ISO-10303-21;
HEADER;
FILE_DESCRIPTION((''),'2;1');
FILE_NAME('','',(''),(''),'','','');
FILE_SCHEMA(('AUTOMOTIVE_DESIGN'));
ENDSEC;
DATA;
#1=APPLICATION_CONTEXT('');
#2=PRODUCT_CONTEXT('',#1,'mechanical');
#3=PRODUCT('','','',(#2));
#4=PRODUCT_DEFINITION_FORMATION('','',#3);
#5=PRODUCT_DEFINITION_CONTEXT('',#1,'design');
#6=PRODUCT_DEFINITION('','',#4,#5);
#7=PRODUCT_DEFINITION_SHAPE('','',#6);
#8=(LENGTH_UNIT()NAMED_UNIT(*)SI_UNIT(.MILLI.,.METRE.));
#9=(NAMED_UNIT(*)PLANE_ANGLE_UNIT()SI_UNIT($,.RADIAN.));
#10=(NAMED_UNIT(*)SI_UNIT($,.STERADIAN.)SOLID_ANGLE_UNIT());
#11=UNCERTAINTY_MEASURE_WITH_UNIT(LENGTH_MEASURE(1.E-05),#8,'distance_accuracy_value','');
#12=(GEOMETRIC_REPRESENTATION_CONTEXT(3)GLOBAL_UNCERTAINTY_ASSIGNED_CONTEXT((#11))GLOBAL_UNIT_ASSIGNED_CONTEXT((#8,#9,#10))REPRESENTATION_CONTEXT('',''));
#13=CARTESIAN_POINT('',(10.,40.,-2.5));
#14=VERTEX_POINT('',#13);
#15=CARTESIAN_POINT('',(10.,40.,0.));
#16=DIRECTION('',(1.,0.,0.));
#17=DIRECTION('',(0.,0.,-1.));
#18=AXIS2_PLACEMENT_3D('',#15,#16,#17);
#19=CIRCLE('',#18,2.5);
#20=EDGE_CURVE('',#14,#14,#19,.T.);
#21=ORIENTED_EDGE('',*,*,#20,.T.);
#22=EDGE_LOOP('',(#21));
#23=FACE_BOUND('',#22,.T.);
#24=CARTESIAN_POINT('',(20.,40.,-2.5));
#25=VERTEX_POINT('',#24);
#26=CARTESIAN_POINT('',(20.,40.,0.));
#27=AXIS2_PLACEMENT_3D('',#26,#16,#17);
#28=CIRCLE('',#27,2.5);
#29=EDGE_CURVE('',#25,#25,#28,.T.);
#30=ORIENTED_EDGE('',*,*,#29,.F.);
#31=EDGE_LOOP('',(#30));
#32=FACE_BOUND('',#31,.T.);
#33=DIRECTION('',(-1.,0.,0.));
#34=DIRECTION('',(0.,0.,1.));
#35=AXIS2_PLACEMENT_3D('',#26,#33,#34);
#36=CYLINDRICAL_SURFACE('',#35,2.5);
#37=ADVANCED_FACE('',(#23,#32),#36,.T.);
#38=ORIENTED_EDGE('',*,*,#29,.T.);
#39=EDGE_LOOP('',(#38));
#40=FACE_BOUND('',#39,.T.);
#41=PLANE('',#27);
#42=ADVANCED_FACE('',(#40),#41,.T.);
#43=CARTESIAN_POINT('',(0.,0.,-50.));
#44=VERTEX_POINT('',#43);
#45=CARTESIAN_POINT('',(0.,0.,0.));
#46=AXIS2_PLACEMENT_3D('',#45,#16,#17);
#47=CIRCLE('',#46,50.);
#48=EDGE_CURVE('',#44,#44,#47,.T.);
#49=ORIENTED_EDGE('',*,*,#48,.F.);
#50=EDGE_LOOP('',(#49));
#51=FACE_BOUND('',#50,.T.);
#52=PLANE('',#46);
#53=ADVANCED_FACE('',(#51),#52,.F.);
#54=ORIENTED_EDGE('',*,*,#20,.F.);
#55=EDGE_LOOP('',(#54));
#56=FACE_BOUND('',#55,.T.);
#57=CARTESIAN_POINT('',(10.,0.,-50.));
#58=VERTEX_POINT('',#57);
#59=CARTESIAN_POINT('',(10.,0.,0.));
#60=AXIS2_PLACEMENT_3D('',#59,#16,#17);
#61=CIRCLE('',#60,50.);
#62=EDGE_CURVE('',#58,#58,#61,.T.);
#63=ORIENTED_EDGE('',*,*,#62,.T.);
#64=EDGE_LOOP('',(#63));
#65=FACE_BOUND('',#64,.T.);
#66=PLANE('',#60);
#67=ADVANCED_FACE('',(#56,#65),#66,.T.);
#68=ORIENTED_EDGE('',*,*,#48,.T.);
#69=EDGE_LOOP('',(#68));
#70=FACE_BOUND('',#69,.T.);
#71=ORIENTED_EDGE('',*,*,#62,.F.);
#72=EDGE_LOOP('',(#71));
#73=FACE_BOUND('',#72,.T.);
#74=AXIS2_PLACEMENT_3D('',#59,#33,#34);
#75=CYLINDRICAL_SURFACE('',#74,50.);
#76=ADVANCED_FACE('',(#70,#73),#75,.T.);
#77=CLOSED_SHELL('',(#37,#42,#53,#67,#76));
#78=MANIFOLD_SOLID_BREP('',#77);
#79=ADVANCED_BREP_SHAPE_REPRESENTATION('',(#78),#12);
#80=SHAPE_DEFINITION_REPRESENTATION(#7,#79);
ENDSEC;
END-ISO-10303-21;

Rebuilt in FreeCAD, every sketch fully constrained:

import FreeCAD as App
import Part
import Sketcher

V = App.Vector
Q = App.Units.Quantity

doc = App.newDocument("Part")
body = doc.addObject("PartDesign::Body", "Body")

sketch1 = body.newObject("Sketcher::SketchObject", "Sketch")
sketch1.AttachmentSupport = (doc.getObject("YZ_Plane"), [""])
sketch1.MapMode = "FlatFace"
sketch1.addGeometry(Part.Circle(V(0, 0, 0), V(0, 0, 1), 50), False)
sketch1.addConstraint(Sketcher.Constraint("Coincident", 0, 3, -1, 1))
sketch1.addConstraint(Sketcher.Constraint("Diameter", 0, Q("100 mm")))
pad1 = body.newObject("PartDesign::Pad", "Pad")
pad1.Profile = sketch1
pad1.Length = 10

sketch2 = body.newObject("Sketcher::SketchObject", "Sketch001")
sketch2.AttachmentSupport = (doc.getObject("YZ_Plane"), [""])
sketch2.MapMode = "FlatFace"
sketch2.AttachmentOffset = App.Placement(V(0, 0, 10), App.Rotation())
sketch2.addGeometry(Part.Circle(V(40, 0, 0), V(0, 0, 1), 2.5), False)
sketch2.addConstraint(Sketcher.Constraint("PointOnObject", 0, 3, -1))
sketch2.addConstraint(Sketcher.Constraint("Diameter", 0, Q("5 mm")))
sketch2.addConstraint(Sketcher.Constraint("DistanceX", -1, 1, 0, 3, Q("40 mm")))
pad2 = body.newObject("PartDesign::Pad", "Pad001")
pad2.Profile = sketch2
pad2.Length = 10

doc.recompute()
